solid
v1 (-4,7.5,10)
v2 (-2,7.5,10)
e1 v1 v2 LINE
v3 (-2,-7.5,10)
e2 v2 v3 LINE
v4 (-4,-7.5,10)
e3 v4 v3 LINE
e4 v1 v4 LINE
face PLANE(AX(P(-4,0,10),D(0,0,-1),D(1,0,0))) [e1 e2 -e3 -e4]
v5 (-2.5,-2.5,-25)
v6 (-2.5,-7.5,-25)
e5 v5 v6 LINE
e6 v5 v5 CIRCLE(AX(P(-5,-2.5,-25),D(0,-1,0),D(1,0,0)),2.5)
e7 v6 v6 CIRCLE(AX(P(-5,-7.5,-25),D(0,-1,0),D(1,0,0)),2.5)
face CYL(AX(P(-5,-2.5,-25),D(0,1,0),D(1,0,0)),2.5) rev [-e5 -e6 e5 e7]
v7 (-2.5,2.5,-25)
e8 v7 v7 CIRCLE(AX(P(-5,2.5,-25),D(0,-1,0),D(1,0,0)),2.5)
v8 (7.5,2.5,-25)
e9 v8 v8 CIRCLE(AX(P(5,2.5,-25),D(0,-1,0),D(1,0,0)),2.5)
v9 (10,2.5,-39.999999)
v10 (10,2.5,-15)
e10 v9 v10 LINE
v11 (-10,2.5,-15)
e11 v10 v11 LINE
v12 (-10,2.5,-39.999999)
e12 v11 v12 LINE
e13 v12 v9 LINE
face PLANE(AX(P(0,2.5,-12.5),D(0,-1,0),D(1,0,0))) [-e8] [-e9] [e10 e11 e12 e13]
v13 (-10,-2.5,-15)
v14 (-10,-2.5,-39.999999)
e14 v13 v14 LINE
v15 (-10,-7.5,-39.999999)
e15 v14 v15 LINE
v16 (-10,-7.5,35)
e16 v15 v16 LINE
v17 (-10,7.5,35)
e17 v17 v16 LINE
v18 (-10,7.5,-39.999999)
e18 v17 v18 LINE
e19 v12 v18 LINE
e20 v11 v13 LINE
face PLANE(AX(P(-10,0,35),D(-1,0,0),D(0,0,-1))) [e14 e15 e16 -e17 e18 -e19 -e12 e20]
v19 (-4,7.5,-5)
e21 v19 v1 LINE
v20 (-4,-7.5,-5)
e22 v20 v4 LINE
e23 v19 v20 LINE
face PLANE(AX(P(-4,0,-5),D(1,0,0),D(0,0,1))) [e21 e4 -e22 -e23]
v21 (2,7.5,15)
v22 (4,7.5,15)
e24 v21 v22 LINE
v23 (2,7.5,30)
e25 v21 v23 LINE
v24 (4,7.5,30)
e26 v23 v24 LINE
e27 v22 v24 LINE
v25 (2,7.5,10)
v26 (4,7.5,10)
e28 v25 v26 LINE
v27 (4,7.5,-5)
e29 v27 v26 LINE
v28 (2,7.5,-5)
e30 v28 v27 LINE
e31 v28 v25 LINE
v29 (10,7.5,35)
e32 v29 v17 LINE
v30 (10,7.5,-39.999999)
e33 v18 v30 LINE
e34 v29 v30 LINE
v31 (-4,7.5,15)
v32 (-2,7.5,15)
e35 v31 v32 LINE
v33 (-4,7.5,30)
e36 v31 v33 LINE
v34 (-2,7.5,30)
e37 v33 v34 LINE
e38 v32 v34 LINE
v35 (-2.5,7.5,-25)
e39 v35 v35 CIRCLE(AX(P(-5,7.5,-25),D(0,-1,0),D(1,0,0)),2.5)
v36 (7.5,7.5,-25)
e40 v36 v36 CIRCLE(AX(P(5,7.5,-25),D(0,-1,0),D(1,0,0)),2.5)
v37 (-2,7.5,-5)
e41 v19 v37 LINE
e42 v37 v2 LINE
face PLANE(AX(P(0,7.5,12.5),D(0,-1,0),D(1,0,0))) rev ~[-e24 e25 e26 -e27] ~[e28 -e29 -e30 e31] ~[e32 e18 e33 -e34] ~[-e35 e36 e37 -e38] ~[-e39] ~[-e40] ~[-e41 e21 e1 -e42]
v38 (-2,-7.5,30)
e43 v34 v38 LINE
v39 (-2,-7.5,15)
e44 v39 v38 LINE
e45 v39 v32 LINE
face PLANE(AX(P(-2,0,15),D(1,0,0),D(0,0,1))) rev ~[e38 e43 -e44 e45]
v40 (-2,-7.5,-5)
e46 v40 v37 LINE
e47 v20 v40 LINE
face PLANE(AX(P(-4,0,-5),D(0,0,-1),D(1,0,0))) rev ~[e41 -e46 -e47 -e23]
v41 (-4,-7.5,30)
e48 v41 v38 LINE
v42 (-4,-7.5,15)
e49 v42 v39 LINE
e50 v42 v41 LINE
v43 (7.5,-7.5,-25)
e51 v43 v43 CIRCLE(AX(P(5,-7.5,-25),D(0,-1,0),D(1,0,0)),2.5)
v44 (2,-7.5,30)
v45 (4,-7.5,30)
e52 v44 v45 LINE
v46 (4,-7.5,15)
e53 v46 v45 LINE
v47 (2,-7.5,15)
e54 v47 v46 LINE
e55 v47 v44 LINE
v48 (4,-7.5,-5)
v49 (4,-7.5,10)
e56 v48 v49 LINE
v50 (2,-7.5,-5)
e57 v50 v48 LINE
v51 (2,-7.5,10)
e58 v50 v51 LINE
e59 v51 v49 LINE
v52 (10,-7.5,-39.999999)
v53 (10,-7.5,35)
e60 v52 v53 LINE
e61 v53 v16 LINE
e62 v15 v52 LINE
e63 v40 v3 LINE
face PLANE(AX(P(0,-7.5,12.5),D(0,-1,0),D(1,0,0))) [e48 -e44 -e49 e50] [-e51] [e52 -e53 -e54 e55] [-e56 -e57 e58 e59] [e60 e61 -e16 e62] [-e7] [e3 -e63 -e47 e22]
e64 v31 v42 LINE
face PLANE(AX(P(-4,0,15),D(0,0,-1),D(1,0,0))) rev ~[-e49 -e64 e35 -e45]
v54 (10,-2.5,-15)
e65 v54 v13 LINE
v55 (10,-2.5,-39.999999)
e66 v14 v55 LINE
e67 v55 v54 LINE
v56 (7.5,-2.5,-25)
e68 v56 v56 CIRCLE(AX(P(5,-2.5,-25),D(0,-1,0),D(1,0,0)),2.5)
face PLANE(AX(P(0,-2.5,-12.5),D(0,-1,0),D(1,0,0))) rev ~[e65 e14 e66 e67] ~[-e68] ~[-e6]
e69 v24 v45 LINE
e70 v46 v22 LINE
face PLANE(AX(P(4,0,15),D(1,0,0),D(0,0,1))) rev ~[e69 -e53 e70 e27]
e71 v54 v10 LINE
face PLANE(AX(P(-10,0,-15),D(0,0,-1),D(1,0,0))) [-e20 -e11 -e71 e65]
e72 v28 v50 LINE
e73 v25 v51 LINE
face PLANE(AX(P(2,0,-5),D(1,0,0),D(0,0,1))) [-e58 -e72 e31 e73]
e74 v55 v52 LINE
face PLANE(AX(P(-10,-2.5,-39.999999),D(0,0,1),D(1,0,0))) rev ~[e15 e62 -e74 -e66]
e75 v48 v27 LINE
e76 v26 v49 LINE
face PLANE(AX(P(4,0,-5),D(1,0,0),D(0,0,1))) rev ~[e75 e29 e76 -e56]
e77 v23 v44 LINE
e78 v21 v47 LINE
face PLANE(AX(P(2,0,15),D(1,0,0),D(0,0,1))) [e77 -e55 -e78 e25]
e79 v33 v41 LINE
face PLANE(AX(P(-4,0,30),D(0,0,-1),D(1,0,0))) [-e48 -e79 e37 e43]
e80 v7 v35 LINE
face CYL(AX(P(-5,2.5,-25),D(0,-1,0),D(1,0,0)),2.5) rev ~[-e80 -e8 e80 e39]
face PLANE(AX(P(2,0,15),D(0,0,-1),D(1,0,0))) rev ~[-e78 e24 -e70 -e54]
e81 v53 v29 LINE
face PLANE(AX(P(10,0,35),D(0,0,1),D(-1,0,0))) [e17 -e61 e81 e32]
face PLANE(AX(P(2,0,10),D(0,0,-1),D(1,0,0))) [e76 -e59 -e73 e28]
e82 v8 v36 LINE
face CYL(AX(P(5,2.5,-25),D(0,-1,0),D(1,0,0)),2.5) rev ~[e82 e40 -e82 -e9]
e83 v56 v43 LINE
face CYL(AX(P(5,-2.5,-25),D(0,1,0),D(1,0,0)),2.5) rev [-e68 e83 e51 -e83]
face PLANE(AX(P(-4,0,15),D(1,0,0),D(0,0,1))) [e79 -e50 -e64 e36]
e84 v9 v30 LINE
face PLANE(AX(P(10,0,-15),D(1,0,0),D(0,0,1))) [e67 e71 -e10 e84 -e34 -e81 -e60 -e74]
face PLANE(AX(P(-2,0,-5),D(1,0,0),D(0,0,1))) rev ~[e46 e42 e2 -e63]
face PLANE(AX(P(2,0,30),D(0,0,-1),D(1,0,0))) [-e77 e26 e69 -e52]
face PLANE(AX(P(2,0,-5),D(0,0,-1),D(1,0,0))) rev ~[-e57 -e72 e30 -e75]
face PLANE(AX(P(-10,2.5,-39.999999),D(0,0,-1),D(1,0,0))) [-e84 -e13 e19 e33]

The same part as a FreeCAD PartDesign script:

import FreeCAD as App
import Part
import Sketcher
Q = App.Units.Quantity

doc = App.newDocument("Part")
body = doc.addObject("PartDesign::Body", "Body")

# Sketch on XZ plane
sketch1 = doc.addObject("Sketcher::SketchObject", "Sketch")
body.addObject(sketch1)
sketch1.AttachmentSupport = (doc.XZ_Plane, [""])
sketch1.MapMode = "FlatFace"
sketch1.addGeometry([
    Part.LineSegment(App.Vector(10, 35, 0), App.Vector(-10, 35, 0)),  # 0
    Part.LineSegment(App.Vector(-10, 35, 0), App.Vector(-10, -15, 0)),  # 1
    Part.LineSegment(App.Vector(-10, -15, 0), App.Vector(10, -15, 0)),  # 2
    Part.LineSegment(App.Vector(10, -15, 0), App.Vector(10, 35, 0)),  # 3
    Part.LineSegment(App.Vector(-2, -5, 0), App.Vector(-4, -5, 0)),  # 4
    Part.LineSegment(App.Vector(-4, -5, 0), App.Vector(-4, 10, 0)),  # 5
    Part.LineSegment(App.Vector(-4, 10, 0), App.Vector(-2, 10, 0)),  # 6
    Part.LineSegment(App.Vector(-2, 10, 0), App.Vector(-2, -5, 0)),  # 7
    Part.LineSegment(App.Vector(4, -5, 0), App.Vector(2, -5, 0)),  # 8
    Part.LineSegment(App.Vector(2, -5, 0), App.Vector(2, 10, 0)),  # 9
    Part.LineSegment(App.Vector(2, 10, 0), App.Vector(4, 10, 0)),  # 10
    Part.LineSegment(App.Vector(4, 10, 0), App.Vector(4, -5, 0)),  # 11
    Part.LineSegment(App.Vector(-2, 15, 0), App.Vector(-4, 15, 0)),  # 12
    Part.LineSegment(App.Vector(-4, 15, 0), App.Vector(-4, 30, 0)),  # 13
    Part.LineSegment(App.Vector(-4, 30, 0), App.Vector(-2, 30, 0)),  # 14
    Part.LineSegment(App.Vector(-2, 30, 0), App.Vector(-2, 15, 0)),  # 15
    Part.LineSegment(App.Vector(4, 15, 0), App.Vector(2, 15, 0)),  # 16
    Part.LineSegment(App.Vector(2, 15, 0), App.Vector(2, 30, 0)),  # 17
    Part.LineSegment(App.Vector(2, 30, 0), App.Vector(4, 30, 0)),  # 18
    Part.LineSegment(App.Vector(4, 30, 0), App.Vector(4, 15, 0)),  # 19
], False)
sketch1.addConstraint([
    Sketcher.Constraint("Coincident", 0, 2, 1, 1),
    Sketcher.Constraint("Coincident", 1, 2, 2, 1),
    Sketcher.Constraint("Coincident", 2, 2, 3, 1),
    Sketcher.Constraint("Coincident", 3, 2, 0, 1),
    Sketcher.Constraint("Coincident", 4, 2, 5, 1),
    Sketcher.Constraint("Coincident", 5, 2, 6, 1),
    Sketcher.Constraint("Coincident", 6, 2, 7, 1),
    Sketcher.Constraint("Coincident", 7, 2, 4, 1),
    Sketcher.Constraint("Coincident", 8, 2, 9, 1),
    Sketcher.Constraint("Coincident", 9, 2, 10, 1),
    Sketcher.Constraint("Coincident", 10, 2, 11, 1),
    Sketcher.Constraint("Coincident", 11, 2, 8, 1),
    Sketcher.Constraint("Coincident", 12, 2, 13, 1),
    Sketcher.Constraint("Coincident", 13, 2, 14, 1),
    Sketcher.Constraint("Coincident", 14, 2, 15, 1),
    Sketcher.Constraint("Coincident", 15, 2, 12, 1),
    Sketcher.Constraint("Coincident", 16, 2, 17, 1),
    Sketcher.Constraint("Coincident", 17, 2, 18, 1),
    Sketcher.Constraint("Coincident", 18, 2, 19, 1),
    Sketcher.Constraint("Coincident", 19, 2, 16, 1),
    Sketcher.Constraint("Horizontal", 0),
    Sketcher.Constraint("Vertical", 1),
    Sketcher.Constraint("Horizontal", 2),
    Sketcher.Constraint("Vertical", 3),
    Sketcher.Constraint("Horizontal", 4),
    Sketcher.Constraint("Vertical", 5),
    Sketcher.Constraint("Horizontal", 6),
    Sketcher.Constraint("Vertical", 7),
    Sketcher.Constraint("Horizontal", 8),
    Sketcher.Constraint("Vertical", 9),
    Sketcher.Constraint("Horizontal", 10),
    Sketcher.Constraint("Vertical", 11),
    Sketcher.Constraint("Horizontal", 12),
    Sketcher.Constraint("Vertical", 13),
    Sketcher.Constraint("Horizontal", 14),
    Sketcher.Constraint("Vertical", 15),
    Sketcher.Constraint("Horizontal", 16),
    Sketcher.Constraint("Vertical", 17),
    Sketcher.Constraint("Horizontal", 18),
    Sketcher.Constraint("Vertical", 19),
    Sketcher.Constraint("Symmetric", 7, 2, 8, 2, -2),
    Sketcher.Constraint("Symmetric", 5, 2, 10, 2, -2),
    Sketcher.Constraint("Symmetric", 15, 2, 16, 2, -2),
    Sketcher.Constraint("Symmetric", 13, 2, 18, 2, -2),
    Sketcher.Constraint("Vertical", 5, 2, 12, 2),
    Sketcher.Constraint("Vertical", 7, 2, 14, 2),
    Sketcher.Constraint("Equal", 11, 13),
    Sketcher.Constraint("DistanceX", 0, 2, 0, 1, Q("20 mm")),
    Sketcher.Constraint("DistanceX", 4, 2, 4, 1, Q("2 mm")),
    Sketcher.Constraint("DistanceY", 1, 2, 1, 1, Q("50 mm")),
    Sketcher.Constraint("DistanceY", 5, 1, 5, 2, Q("15 mm")),
    Sketcher.Constraint("DistanceX", 0, 2, -1, 1, Q("10 mm")),
    Sketcher.Constraint("DistanceY", -1, 1, 0, 2, Q("35 mm")),
    Sketcher.Constraint("DistanceX", 4, 2, -1, 1, Q("4 mm")),
    Sketcher.Constraint("DistanceY", 4, 2, -1, 1, Q("5 mm")),
    Sketcher.Constraint("DistanceY", -1, 1, 12, 2, Q("15 mm")),
])
pad1 = doc.addObject("PartDesign::Pad", "Pad")
body.addObject(pad1)
pad1.Profile = sketch1
pad1.Length = 15
pad1.Midplane = True

# Sketch on XZ plane
sketch2 = doc.addObject("Sketcher::SketchObject", "Sketch001")
body.addObject(sketch2)
sketch2.AttachmentSupport = (doc.XZ_Plane, [""])
sketch2.MapMode = "FlatFace"
sketch2.AttachmentOffset = App.Placement(App.Vector(0, 0, 2.5), App.Rotation())
sketch2.addGeometry([
    Part.LineSegment(App.Vector(-10, -10, 0), App.Vector(-10, -39.999999, 0)),  # 0
    Part.LineSegment(App.Vector(-10, -39.999999, 0), App.Vector(10, -39.999999, 0)),  # 1
    Part.LineSegment(App.Vector(10, -39.999999, 0), App.Vector(10, -10, 0)),  # 2
    Part.LineSegment(App.Vector(10, -10, 0), App.Vector(-10, -10, 0)),  # 3
    Part.Circle(App.Vector(-5, -25, 0), App.Vector(0, 0, 1), 2.5),  # 4
    Part.Circle(App.Vector(5, -25, 0), App.Vector(0, 0, 1), 2.5),  # 5
], False)
sketch2.addConstraint([
    Sketcher.Constraint("Coincident", 0, 2, 1, 1),
    Sketcher.Constraint("Coincident", 1, 2, 2, 1),
    Sketcher.Constraint("Coincident", 2, 2, 3, 1),
    Sketcher.Constraint("Coincident", 3, 2, 0, 1),
    Sketcher.Constraint("Vertical", 0),
    Sketcher.Constraint("Horizontal", 1),
    Sketcher.Constraint("Vertical", 2),
    Sketcher.Constraint("Horizontal", 3),
    Sketcher.Constraint("Equal", 4, 5),
    Sketcher.Constraint("Symmetric", 4, 3, 5, 3, -2),
    Sketcher.Constraint("Diameter", 4, Q("5 mm")),
    Sketcher.Constraint("DistanceX", 1, 1, 1, 2, Q("20 mm")),
    Sketcher.Constraint("DistanceY", 0, 2, 0, 1, Q("29.999999 mm")),
    Sketcher.Constraint("DistanceX", 4, 3, -1, 1, Q("5 mm")),
    Sketcher.Constraint("DistanceY", 4, 3, -1, 1, Q("25 mm")),
    Sketcher.Constraint("DistanceX", 0, 2, -1, 1, Q("10 mm")),
    Sketcher.Constraint("DistanceY", 0, 2, -1, 1, Q("39.999999 mm")),
])
pad2 = doc.addObject("PartDesign::Pad", "Pad001")
body.addObject(pad2)
pad2.Profile = sketch2
pad2.Length = 5

# Sketch on XZ plane
sketch3 = doc.addObject("Sketcher::SketchObject", "Sketch002")
body.addObject(sketch3)
sketch3.AttachmentSupport = (doc.XZ_Plane, [""])
sketch3.MapMode = "FlatFace"
sketch3.AttachmentOffset = App.Placement(App.Vector(0, 0, -2.5), App.Rotation())
sketch3.addGeometry([
    Part.LineSegment(App.Vector(-10, -10, 0), App.Vector(-10, -39.999999, 0)),  # 0
    Part.LineSegment(App.Vector(-10, -39.999999, 0), App.Vector(10, -39.999999, 0)),  # 1
    Part.LineSegment(App.Vector(10, -39.999999, 0), App.Vector(10, -10, 0)),  # 2
    Part.LineSegment(App.Vector(10, -10, 0), App.Vector(-10, -10, 0)),  # 3
    Part.Circle(App.Vector(-5, -25, 0), App.Vector(0, 0, 1), 2.5),  # 4
    Part.Circle(App.Vector(5, -25, 0), App.Vector(0, 0, 1), 2.5),  # 5
], False)
sketch3.addConstraint([
    Sketcher.Constraint("Coincident", 0, 2, 1, 1),
    Sketcher.Constraint("Coincident", 1, 2, 2, 1),
    Sketcher.Constraint("Coincident", 2, 2, 3, 1),
    Sketcher.Constraint("Coincident", 3, 2, 0, 1),
    Sketcher.Constraint("Vertical", 0),
    Sketcher.Constraint("Horizontal", 1),
    Sketcher.Constraint("Vertical", 2),
    Sketcher.Constraint("Horizontal", 3),
    Sketcher.Constraint("Equal", 4, 5),
    Sketcher.Constraint("Symmetric", 4, 3, 5, 3, -2),
    Sketcher.Constraint("Diameter", 4, Q("5 mm")),
    Sketcher.Constraint("DistanceX", 1, 1, 1, 2, Q("20 mm")),
    Sketcher.Constraint("DistanceY", 0, 2, 0, 1, Q("29.999999 mm")),
    Sketcher.Constraint("DistanceX", 4, 3, -1, 1, Q("5 mm")),
    Sketcher.Constraint("DistanceY", 4, 3, -1, 1, Q("25 mm")),
    Sketcher.Constraint("DistanceX", 0, 2, -1, 1, Q("10 mm")),
    Sketcher.Constraint("DistanceY", 0, 2, -1, 1, Q("39.999999 mm")),
])
pad3 = doc.addObject("PartDesign::Pad", "Pad002")
body.addObject(pad3)
pad3.Profile = sketch3
pad3.Length = 5
pad3.Reversed = True

doc.recompute()
